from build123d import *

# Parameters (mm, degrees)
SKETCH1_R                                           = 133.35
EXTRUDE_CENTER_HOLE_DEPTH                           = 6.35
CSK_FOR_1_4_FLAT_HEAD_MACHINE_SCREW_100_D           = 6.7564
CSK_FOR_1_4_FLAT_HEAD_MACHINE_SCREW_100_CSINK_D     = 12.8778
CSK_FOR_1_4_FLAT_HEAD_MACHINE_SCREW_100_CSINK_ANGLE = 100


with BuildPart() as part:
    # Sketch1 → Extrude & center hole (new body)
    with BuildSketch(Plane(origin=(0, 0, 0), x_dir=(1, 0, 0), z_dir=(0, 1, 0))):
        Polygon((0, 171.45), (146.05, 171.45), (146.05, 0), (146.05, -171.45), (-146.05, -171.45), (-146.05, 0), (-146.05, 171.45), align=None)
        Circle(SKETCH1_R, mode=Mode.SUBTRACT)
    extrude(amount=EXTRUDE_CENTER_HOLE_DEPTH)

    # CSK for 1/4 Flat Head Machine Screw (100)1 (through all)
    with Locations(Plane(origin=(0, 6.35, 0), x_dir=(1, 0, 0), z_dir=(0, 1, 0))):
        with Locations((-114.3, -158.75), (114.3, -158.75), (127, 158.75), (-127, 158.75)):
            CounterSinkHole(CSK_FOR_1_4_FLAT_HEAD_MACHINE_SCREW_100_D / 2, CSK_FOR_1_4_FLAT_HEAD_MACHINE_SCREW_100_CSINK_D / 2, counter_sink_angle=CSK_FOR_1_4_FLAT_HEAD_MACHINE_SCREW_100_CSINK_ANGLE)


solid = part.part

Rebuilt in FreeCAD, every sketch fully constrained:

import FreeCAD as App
import Part
import Sketcher
Q = App.Units.Quantity


def add_polygon(sketch, points):
    """Adds a closed chain of lines whose ends are joined by coincident constraints."""
    first, n = sketch.GeometryCount, len(points)
    for a, b in zip(points, points[1:] + points[:1]):
        sketch.addGeometry(Part.LineSegment(App.Vector(*a, 0), App.Vector(*b, 0)), False)
    for i in range(n):
        sketch.addConstraint(Sketcher.Constraint("Coincident", first + i, 2, first + (i + 1) % n, 1))

doc = App.newDocument("Part")
body = doc.addObject("PartDesign::Body", "Body")

sketch1 = body.newObject("Sketcher::SketchObject", "Sketch")
sketch1.AttachmentSupport = (doc.getObject("XZ_Plane"), [""])
sketch1.MapMode = "FlatFace"
add_polygon(sketch1, [(146.05, -171.45), (-146.05, -171.45), (-146.05, 171.45), (146.05, 171.45)])
sketch1.addGeometry(Part.Circle(App.Vector(0, 0, 0), App.Vector(0, 0, 1), 133.35), False)
sketch1.addConstraint([
    Sketcher.Constraint("Horizontal", 0),
    Sketcher.Constraint("Vertical", 1),
    Sketcher.Constraint("Horizontal", 2),
    Sketcher.Constraint("Vertical", 3),
    Sketcher.Constraint("Coincident", 4, 3, -1, 1),
    Sketcher.Constraint("Symmetric", 0, 2, 2, 2, -1, 1),
    Sketcher.Constraint("Diameter", 4, Q("10.5 in")),
    Sketcher.Constraint("DistanceX", 0, 2, 0, 1, Q("11.5 in")),
    Sketcher.Constraint("DistanceY", 1, 1, 1, 2, Q("13.5 in")),
])
pad1 = body.newObject("PartDesign::Pad", "Pad")
pad1.Profile = sketch1
pad1.Length = Q("0.25 in")
pad1.Reversed = True

sketch2 = body.newObject("Sketcher::SketchObject", "Sketch001")
sketch2.AttachmentSupport = (doc.getObject("XZ_Plane"), [""])
sketch2.MapMode = "FlatFace"
sketch2.AttachmentOffset = App.Placement(App.Vector(0, 0, -0.25 * 25.4), App.Rotation())
sketch2.addGeometry([
    Part.Circle(App.Vector(-114.3, 158.75, 0), App.Vector(0, 0, 1), 3.3782),
    Part.Circle(App.Vector(114.3, 158.75, 0), App.Vector(0, 0, 1), 3.3782),
    Part.Circle(App.Vector(127, -158.75, 0), App.Vector(0, 0, 1), 3.3782),
    Part.Circle(App.Vector(-127, -158.75, 0), App.Vector(0, 0, 1), 3.3782),
], False)
sketch2.addConstraint([
    Sketcher.Constraint("Equal", 0, 1),
    Sketcher.Constraint("Equal", 1, 2),
    Sketcher.Constraint("Equal", 2, 3),
    Sketcher.Constraint("Symmetric", 0, 3, 1, 3, -2),
    Sketcher.Constraint("Symmetric", 2, 3, 3, 3, -2),
    Sketcher.Constraint("Diameter", 0, Q("0.266 in")),
    Sketcher.Constraint("DistanceX", -1, 1, 2, 3, Q("5 in")),
    Sketcher.Constraint("DistanceX", 0, 3, 1, 3, Q("9 in")),
    Sketcher.Constraint("DistanceY", 2, 3, 1, 3, Q("12.5 in")),
    Sketcher.Constraint("DistanceY", -1, 1, 0, 3, Q("6.25 in")),
])
doc.recompute()
hole = body.newObject("PartDesign::Hole", "Hole")
hole.Profile = sketch2
hole.ThreadType = "None"
hole.Diameter = Q("0.266 in")
hole.DepthType = "ThroughAll"
hole.HoleCutType = "Countersink"
hole.HoleCutDiameter = Q("0.507 in")
hole.HoleCutCountersinkAngle = 100
hole.Reversed = True

doc.recompute()
